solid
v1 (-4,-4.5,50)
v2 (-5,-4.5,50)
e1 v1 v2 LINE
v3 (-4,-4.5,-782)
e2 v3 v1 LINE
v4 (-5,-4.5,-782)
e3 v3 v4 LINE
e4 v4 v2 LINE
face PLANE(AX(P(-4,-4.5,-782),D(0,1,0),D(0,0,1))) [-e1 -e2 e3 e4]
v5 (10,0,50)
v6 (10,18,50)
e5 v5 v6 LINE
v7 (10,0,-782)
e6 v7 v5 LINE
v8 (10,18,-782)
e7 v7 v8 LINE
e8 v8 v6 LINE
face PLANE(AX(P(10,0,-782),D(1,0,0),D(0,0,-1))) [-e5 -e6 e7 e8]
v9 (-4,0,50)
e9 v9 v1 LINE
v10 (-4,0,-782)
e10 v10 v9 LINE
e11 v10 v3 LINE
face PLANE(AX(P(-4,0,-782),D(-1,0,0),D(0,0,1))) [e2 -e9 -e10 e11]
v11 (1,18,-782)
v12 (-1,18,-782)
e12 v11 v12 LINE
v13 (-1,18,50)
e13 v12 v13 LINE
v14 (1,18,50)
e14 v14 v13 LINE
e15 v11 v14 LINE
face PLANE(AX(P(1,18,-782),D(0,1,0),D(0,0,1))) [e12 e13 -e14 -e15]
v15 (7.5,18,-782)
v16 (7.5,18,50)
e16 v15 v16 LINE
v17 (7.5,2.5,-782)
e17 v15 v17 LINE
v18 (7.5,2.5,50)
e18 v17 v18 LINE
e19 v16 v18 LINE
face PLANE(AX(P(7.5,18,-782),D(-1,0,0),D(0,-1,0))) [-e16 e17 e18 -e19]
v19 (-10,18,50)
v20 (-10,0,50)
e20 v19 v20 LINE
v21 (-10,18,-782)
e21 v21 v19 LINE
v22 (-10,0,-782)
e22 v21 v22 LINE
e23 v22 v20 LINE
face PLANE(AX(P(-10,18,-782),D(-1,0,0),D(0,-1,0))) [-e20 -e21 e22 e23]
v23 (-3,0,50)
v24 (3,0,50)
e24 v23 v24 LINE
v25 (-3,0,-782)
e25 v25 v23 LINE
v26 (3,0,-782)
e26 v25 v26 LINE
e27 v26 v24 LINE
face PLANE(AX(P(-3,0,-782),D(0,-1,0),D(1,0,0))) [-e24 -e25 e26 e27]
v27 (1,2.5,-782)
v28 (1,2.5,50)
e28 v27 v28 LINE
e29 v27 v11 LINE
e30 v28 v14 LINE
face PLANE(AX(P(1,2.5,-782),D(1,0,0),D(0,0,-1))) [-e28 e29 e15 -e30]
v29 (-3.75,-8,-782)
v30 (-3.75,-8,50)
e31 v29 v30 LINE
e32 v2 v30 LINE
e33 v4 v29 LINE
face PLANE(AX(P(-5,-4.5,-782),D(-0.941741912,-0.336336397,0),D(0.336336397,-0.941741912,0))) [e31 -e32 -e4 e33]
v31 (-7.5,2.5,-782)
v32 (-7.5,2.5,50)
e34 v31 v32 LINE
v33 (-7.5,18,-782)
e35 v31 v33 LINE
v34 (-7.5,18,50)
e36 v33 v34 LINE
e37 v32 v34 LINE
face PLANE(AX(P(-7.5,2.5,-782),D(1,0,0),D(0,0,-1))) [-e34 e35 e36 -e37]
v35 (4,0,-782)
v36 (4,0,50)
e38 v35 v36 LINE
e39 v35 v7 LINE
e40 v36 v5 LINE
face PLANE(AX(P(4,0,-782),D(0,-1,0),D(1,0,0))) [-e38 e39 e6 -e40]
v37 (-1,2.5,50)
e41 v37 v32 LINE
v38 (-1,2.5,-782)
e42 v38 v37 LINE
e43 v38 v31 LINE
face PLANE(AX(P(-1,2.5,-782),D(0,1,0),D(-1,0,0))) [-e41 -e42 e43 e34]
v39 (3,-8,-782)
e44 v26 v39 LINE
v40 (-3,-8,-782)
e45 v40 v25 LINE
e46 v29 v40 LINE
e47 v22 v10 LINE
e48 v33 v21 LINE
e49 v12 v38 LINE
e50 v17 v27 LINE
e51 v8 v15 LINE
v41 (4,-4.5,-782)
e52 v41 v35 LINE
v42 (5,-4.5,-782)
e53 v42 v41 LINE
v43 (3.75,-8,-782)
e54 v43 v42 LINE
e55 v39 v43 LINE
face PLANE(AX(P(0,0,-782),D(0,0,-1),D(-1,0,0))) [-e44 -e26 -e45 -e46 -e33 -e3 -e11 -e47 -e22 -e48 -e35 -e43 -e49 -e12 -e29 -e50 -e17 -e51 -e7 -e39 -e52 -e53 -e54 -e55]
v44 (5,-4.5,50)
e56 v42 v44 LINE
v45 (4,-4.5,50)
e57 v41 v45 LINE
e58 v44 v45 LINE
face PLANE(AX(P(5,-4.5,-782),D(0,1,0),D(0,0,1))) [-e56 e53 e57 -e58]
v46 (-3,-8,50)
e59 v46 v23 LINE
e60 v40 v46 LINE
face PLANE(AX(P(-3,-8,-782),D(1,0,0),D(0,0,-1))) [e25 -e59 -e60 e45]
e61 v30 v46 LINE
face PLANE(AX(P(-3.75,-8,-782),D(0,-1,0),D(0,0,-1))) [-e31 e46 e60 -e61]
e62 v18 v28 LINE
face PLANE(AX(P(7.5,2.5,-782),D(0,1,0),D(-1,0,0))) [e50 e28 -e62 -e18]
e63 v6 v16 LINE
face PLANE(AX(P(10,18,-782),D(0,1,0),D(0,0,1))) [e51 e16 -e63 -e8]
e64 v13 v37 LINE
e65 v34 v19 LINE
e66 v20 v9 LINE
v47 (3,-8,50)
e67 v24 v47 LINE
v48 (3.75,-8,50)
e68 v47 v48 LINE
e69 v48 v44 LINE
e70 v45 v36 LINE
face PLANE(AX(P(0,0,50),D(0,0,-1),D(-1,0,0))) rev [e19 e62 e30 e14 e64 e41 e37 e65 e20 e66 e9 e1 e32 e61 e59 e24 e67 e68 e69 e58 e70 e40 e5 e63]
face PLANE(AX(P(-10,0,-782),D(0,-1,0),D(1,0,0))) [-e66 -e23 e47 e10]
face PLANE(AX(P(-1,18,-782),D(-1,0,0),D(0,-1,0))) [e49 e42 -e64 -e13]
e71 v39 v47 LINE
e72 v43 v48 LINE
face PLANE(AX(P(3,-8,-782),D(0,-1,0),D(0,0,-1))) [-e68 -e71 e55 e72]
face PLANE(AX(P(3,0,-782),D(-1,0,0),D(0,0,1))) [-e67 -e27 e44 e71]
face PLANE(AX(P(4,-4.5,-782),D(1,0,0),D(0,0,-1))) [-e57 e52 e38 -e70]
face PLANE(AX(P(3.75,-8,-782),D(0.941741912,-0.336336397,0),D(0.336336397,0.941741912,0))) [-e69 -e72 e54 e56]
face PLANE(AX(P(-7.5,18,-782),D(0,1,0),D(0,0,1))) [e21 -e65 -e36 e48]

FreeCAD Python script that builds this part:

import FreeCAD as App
import Part
import Sketcher

V = App.Vector
Q = App.Units.Quantity

doc = App.newDocument("Part")
body = doc.addObject("PartDesign::Body", "Body")

# Sketch on XY plane
sketch1 = body.newObject("Sketcher::SketchObject", "Sketch")
sketch1.AttachmentSupport = (doc.getObject("XY_Plane"), [""])
sketch1.MapMode = "FlatFace"
sketch1.AttachmentOffset = App.Placement(V(0, 0, 50), App.Rotation())
sketch1.addGeometry(Part.LineSegment(V(-1, 2.5, 0), V(-7.5, 2.5, 0)), False)
sketch1.addGeometry(Part.LineSegment(V(-7.5, 2.5, 0), V(-7.5, 18, 0)), False)
sketch1.addGeometry(Part.LineSegment(V(-7.5, 18, 0), V(-10, 18, 0)), False)
sketch1.addGeometry(Part.LineSegment(V(-10, 18, 0), V(-10, 0, 0)), False)
sketch1.addGeometry(Part.LineSegment(V(-10, 0, 0), V(-4, 0, 0)), False)
sketch1.addGeometry(Part.LineSegment(V(-4, 0, 0), V(-4, -4.5, 0)), False)
sketch1.addGeometry(Part.LineSegment(V(-4, -4.5, 0), V(-5, -4.5, 0)), False)
sketch1.addGeometry(Part.LineSegment(V(-5, -4.5, 0), V(-3.8, -8, 0)), False)
sketch1.addGeometry(Part.LineSegment(V(-3.8, -8, 0), V(-3, -8, 0)), False)
sketch1.addGeometry(Part.LineSegment(V(-3, -8, 0), V(-3, 0, 0)), False)
sketch1.addGeometry(Part.LineSegment(V(-3, 0, 0), V(3, 0, 0)), False)
sketch1.addGeometry(Part.LineSegment(V(3, 0, 0), V(3, -8, 0)), False)
sketch1.addGeometry(Part.LineSegment(V(3, -8, 0), V(3.8, -8, 0)), False)
sketch1.addGeometry(Part.LineSegment(V(3.8, -8, 0), V(5, -4.5, 0)), False)
sketch1.addGeometry(Part.LineSegment(V(5, -4.5, 0), V(4, -4.5, 0)), False)
sketch1.addGeometry(Part.LineSegment(V(4, -4.5, 0), V(4, 0, 0)), False)
sketch1.addGeometry(Part.LineSegment(V(4, 0, 0), V(10, 0, 0)), False)
sketch1.addGeometry(Part.LineSegment(V(10, 0, 0), V(10, 18, 0)), False)
sketch1.addGeometry(Part.LineSegment(V(10, 18, 0), V(7.5, 18, 0)), False)
sketch1.addGeometry(Part.LineSegment(V(7.5, 18, 0), V(7.5, 2.5, 0)), False)
sketch1.addGeometry(Part.LineSegment(V(7.5, 2.5, 0), V(1, 2.5, 0)), False)
sketch1.addGeometry(Part.LineSegment(V(1, 2.5, 0), V(1, 18, 0)), False)
sketch1.addGeometry(Part.LineSegment(V(1, 18, 0), V(-1, 18, 0)), False)
sketch1.addGeometry(Part.LineSegment(V(-1, 18, 0), V(-1, 2.5, 0)), False)
sketch1.addConstraint(Sketcher.Constraint("Coincident", 0, 2, 1, 1))
sketch1.addConstraint(Sketcher.Constraint("Coincident", 1, 2, 2, 1))
sketch1.addConstraint(Sketcher.Constraint("Coincident", 2, 2, 3, 1))
sketch1.addConstraint(Sketcher.Constraint("Coincident", 3, 2, 4, 1))
sketch1.addConstraint(Sketcher.Constraint("Coincident", 4, 2, 5, 1))
sketch1.addConstraint(Sketcher.Constraint("Coincident", 5, 2, 6, 1))
sketch1.addConstraint(Sketcher.Constraint("Coincident", 6, 2, 7, 1))
sketch1.addConstraint(Sketcher.Constraint("Coincident", 7, 2, 8, 1))
sketch1.addConstraint(Sketcher.Constraint("Coincident", 8, 2, 9, 1))
sketch1.addConstraint(Sketcher.Constraint("Coincident", 9, 2, 10, 1))
sketch1.addConstraint(Sketcher.Constraint("Coincident", 10, 2, 11, 1))
sketch1.addConstraint(Sketcher.Constraint("Coincident", 11, 2, 12, 1))
sketch1.addConstraint(Sketcher.Constraint("Coincident", 12, 2, 13, 1))
sketch1.addConstraint(Sketcher.Constraint("Coincident", 13, 2, 14, 1))
sketch1.addConstraint(Sketcher.Constraint("Coincident", 14, 2, 15, 1))
sketch1.addConstraint(Sketcher.Constraint("Coincident", 15, 2, 16, 1))
sketch1.addConstraint(Sketcher.Constraint("Coincident", 16, 2, 17, 1))
sketch1.addConstraint(Sketcher.Constraint("Coincident", 17, 2, 18, 1))
sketch1.addConstraint(Sketcher.Constraint("Coincident", 18, 2, 19, 1))
sketch1.addConstraint(Sketcher.Constraint("Coincident", 19, 2, 20, 1))
sketch1.addConstraint(Sketcher.Constraint("Coincident", 20, 2, 21, 1))
sketch1.addConstraint(Sketcher.Constraint("Coincident", 21, 2, 22, 1))
sketch1.addConstraint(Sketcher.Constraint("Coincident", 22, 2, 23, 1))
sketch1.addConstraint(Sketcher.Constraint("Coincident", 23, 2, 0, 1))
sketch1.addConstraint(Sketcher.Constraint("Horizontal", 0))
sketch1.addConstraint(Sketcher.Constraint("Vertical", 1))
sketch1.addConstraint(Sketcher.Constraint("Horizontal", 2))
sketch1.addConstraint(Sketcher.Constraint("Vertical", 3))
sketch1.addConstraint(Sketcher.Constraint("Horizontal", 4))
sketch1.addConstraint(Sketcher.Constraint("Vertical", 5))
sketch1.addConstraint(Sketcher.Constraint("Horizontal", 6))
sketch1.addConstraint(Sketcher.Constraint("Horizontal", 8))
sketch1.addConstraint(Sketcher.Constraint("Vertical", 9))
sketch1.addConstraint(Sketcher.Constraint("Horizontal", 10))
sketch1.addConstraint(Sketcher.Constraint("Vertical", 11))
sketch1.addConstraint(Sketcher.Constraint("Horizontal", 12))
sketch1.addConstraint(Sketcher.Constraint("Horizontal", 14))
sketch1.addConstraint(Sketcher.Constraint("Vertical", 15))
sketch1.addConstraint(Sketcher.Constraint("Horizontal", 16))
sketch1.addConstraint(Sketcher.Constraint("Vertical", 17))
sketch1.addConstraint(Sketcher.Constraint("Horizontal", 18))
sketch1.addConstraint(Sketcher.Constraint("Vertical", 19))
sketch1.addConstraint(Sketcher.Constraint("Horizontal", 20))
sketch1.addConstraint(Sketcher.Constraint("Vertical", 21))
sketch1.addConstraint(Sketcher.Constraint("Horizontal", 22))
sketch1.addConstraint(Sketcher.Constraint("Vertical", 23))
sketch1.addConstraint(Sketcher.Constraint("Symmetric", 9, 2, 10, 2, -1, 1))
sketch1.addConstraint(Sketcher.Constraint("Symmetric", 4, 2, 15, 2, -1, 1))
sketch1.addConstraint(Sketcher.Constraint("Symmetric", 7, 2, 12, 2, -2))
sketch1.addConstraint(Sketcher.Constraint("Symmetric", 6, 2, 13, 2, -2))
sketch1.addConstraint(Sketcher.Constraint("Symmetric", 3, 2, 16, 2, -2))
sketch1.addConstraint(Sketcher.Constraint("Symmetric", 1, 2, 18, 2, -2))
sketch1.addConstraint(Sketcher.Constraint("Symmetric", 20, 2, 23, 2, -2))
sketch1.addConstraint(Sketcher.Constraint("Horizontal", 18, 2, 21, 2))
sketch1.addConstraint(Sketcher.Constraint("Equal", 4, 10))
sketch1.addConstraint(Sketcher.Constraint("DistanceX", 4, 1, 4, 2, Q("6 mm")))
sketch1.addConstraint(Sketcher.Constraint("DistanceX", 6, 2, 6, 1, Q("1 mm")))
sketch1.addConstraint(Sketcher.Constraint("DistanceX", 22, 2, 22, 1, Q("2 mm")))
sketch1.addConstraint(Sketcher.Constraint("DistanceY", 3, 2, 3, 1, Q("18 mm")))
sketch1.addConstraint(Sketcher.Constraint("DistanceY", 9, 1, 9, 2, Q("8 mm")))
sketch1.addConstraint(Sketcher.Constraint("DistanceX", 0, 2, 0, 1, Q("6.5 mm")))
sketch1.addConstraint(Sketcher.Constraint("DistanceX", 2, 2, 2, 1, Q("2.5 mm")))
sketch1.addConstraint(Sketcher.Constraint("DistanceY", 1, 1, 1, 2, Q("15.5 mm")))
sketch1.addConstraint(Sketcher.Constraint("DistanceY", 5, 2, 5, 1, Q("4.5 mm")))
sketch1.addConstraint(Sketcher.Constraint("DistanceX", 8, 1, 8, 2, Q("0.75 mm")))
pad1 = body.newObject("PartDesign::Pad", "Pad")
pad1.Profile = sketch1
pad1.Length = 832
pad1.Reversed = True

doc.recompute()
